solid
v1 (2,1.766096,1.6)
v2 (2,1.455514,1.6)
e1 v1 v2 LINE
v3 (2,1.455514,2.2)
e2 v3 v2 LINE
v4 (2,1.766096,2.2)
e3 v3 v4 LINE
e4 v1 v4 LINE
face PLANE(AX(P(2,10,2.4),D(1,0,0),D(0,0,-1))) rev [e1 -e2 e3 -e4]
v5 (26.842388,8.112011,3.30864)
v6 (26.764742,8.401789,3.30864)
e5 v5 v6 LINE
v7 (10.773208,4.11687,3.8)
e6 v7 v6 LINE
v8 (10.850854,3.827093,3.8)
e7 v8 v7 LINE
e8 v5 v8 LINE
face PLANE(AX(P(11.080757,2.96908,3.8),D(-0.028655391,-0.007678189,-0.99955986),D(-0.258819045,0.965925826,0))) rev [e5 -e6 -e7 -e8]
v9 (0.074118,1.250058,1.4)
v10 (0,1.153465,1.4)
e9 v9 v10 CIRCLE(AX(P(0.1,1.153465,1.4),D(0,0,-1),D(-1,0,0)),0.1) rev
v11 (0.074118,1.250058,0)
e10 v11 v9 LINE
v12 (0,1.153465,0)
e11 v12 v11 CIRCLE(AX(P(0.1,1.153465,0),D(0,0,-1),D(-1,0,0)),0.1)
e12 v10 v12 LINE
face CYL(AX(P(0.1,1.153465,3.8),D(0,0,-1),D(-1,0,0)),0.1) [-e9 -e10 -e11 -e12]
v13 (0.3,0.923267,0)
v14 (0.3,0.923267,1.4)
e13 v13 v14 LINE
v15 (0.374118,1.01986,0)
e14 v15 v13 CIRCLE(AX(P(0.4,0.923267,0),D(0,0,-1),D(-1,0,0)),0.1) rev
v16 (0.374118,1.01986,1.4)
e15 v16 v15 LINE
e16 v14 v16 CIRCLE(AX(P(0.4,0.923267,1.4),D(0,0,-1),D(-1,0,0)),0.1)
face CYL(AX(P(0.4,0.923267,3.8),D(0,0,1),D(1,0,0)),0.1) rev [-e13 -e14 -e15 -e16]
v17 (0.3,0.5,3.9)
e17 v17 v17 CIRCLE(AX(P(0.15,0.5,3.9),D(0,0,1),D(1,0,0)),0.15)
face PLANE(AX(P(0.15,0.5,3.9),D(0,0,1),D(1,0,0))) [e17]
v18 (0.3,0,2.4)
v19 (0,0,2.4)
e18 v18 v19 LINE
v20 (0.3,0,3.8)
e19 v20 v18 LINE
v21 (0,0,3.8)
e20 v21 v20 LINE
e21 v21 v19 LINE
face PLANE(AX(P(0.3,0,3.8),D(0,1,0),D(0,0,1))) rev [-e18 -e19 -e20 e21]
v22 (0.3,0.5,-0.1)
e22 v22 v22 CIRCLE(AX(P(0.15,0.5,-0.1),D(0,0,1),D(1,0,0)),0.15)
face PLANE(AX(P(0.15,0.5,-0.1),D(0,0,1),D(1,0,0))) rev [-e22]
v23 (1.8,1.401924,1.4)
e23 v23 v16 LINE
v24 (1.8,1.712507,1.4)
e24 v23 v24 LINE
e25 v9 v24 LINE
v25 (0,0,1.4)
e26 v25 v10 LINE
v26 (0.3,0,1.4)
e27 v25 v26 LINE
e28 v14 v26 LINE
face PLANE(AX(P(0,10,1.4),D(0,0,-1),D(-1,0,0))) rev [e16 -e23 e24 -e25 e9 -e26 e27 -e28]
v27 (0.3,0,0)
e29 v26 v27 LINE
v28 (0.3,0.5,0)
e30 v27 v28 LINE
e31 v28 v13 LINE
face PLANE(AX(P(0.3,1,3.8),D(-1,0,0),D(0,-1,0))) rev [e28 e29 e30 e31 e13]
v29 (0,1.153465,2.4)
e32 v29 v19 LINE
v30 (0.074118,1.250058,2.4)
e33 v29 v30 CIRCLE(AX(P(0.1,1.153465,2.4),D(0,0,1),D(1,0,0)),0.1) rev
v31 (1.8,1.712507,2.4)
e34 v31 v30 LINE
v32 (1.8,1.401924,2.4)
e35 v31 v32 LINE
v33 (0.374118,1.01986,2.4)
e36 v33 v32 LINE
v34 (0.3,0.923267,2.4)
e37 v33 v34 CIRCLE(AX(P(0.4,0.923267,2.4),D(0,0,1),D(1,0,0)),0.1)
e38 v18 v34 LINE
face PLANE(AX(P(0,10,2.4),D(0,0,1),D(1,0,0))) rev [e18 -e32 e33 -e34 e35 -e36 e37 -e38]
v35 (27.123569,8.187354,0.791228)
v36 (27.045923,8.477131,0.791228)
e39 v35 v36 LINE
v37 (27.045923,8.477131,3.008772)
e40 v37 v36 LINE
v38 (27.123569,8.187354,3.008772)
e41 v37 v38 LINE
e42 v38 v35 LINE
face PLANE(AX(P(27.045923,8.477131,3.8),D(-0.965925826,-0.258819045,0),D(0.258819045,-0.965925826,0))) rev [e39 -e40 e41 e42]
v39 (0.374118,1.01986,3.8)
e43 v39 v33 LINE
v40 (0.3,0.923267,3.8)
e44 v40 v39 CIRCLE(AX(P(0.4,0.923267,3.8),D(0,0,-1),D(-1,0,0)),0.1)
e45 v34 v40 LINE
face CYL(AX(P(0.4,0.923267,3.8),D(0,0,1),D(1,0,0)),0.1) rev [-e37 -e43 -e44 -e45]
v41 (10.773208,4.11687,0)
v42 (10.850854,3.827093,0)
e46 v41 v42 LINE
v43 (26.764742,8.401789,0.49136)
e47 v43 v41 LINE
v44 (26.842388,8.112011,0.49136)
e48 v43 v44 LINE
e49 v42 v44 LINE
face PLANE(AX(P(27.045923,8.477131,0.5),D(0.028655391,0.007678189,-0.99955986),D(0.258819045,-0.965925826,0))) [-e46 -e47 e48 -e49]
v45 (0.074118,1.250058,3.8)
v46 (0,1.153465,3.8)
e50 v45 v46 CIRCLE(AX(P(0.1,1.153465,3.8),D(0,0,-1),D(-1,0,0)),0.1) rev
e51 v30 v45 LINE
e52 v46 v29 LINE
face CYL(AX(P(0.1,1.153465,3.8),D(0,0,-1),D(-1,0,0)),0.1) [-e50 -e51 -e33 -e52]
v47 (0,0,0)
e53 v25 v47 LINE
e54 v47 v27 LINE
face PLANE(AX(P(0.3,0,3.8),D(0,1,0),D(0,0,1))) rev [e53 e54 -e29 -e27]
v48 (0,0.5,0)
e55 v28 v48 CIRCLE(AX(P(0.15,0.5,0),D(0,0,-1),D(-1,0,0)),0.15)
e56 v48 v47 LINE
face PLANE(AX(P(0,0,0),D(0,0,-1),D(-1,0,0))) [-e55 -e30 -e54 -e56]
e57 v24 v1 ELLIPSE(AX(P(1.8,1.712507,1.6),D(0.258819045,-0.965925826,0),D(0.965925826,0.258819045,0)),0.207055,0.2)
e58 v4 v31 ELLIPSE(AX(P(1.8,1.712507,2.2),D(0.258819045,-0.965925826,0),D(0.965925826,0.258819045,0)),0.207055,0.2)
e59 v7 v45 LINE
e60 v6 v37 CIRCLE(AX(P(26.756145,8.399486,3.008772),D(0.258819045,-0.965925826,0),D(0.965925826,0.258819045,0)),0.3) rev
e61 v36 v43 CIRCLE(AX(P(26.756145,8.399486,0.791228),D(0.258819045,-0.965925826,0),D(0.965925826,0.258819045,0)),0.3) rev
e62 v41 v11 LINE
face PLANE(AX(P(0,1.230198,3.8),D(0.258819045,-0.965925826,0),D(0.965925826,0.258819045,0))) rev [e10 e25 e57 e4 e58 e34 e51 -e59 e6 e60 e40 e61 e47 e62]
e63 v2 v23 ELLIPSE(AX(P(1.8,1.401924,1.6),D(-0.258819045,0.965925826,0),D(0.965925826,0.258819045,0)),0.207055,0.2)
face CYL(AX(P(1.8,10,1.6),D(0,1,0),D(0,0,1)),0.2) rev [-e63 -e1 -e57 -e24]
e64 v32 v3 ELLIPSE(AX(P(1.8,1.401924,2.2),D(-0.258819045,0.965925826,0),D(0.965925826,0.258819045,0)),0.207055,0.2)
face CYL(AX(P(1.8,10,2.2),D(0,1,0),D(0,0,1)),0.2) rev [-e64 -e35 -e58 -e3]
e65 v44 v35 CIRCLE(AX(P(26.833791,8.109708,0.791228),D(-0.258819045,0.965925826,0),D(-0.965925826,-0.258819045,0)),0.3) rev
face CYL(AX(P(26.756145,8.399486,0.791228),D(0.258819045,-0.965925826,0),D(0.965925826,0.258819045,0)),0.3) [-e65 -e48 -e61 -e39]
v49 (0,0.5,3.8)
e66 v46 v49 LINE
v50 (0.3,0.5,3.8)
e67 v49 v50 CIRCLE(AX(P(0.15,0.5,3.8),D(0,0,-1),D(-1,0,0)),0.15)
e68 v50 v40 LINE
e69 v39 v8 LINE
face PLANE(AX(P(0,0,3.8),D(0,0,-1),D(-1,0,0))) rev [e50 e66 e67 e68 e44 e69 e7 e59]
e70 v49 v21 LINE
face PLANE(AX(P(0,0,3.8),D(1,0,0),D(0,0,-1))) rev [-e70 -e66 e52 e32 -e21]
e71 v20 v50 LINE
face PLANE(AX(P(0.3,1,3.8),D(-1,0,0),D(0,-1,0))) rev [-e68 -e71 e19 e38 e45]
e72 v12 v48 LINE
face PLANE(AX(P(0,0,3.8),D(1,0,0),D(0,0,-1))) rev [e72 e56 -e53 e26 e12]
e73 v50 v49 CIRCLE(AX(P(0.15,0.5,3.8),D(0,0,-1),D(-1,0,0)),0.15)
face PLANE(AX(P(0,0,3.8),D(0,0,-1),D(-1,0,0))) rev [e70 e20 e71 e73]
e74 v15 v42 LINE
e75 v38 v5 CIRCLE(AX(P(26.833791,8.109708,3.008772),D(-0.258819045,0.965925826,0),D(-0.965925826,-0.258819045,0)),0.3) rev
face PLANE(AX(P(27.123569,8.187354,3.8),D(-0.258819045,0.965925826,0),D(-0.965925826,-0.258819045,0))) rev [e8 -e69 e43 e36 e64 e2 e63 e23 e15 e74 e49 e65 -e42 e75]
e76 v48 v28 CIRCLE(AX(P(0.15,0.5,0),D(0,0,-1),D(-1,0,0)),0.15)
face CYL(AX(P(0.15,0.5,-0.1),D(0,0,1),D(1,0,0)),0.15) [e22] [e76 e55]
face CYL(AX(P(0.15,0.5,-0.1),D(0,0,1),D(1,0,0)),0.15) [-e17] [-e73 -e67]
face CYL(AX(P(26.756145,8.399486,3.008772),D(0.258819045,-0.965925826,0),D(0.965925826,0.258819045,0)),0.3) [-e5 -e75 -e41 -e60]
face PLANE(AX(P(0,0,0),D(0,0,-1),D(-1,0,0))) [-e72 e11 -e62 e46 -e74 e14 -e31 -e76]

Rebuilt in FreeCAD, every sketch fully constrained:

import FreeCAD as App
import Part
import Sketcher
Q = App.Units.Quantity


def edges_at(feature, points):
    """Names of the edges that pass closest to the given points."""
    edges = feature.Shape.Edges
    near = lambda p: min(range(len(edges)), key=lambda i: edges[i].distToShape(Part.Vertex(*p))[0])
    return sorted({f"Edge{near(p) + 1}" for p in points})

doc = App.newDocument("Part")
params = doc.addObject("Spreadsheet::Sheet", "Params")
for row, (alias, value) in enumerate([
    ("sketch1_height", "1 mm"),
    ("sketch1_length", "28 mm"),
    ("sketch1_width", "0.3 mm"),
    ("sketch1_length2", "0.3 mm"),
    ("pad1_length", "3.8 mm"),
    ("chamfer_size", "0.5 mm"),
    ("chamfer_size2", "16.846754 mm"),
    ("sketch2_diameter", "0.3 mm"),
    ("pad2_length", "0.1 mm"),
    ("pad2_length2", "3.9 mm"),
    ("sketch3_width", "2 mm"),
    ("sketch3_height", "1 mm"),
    ("pocket1_length", "10 mm"),
    ("fillet_radius", "0.1 mm"),
    ("fillet2_radius", "0.3 mm"),
    ("fillet3_radius", "0.2 mm"),
], start=1):
    params.set(f"A{row}", alias)
    params.set(f"B{row}", "=" + value)
    params.setAlias(f"B{row}", alias)

body = doc.addObject("PartDesign::Body", "Body")

# Sketch on XY plane
sketch1 = body.newObject("Sketcher::SketchObject", "Sketch")
sketch1.AttachmentSupport = (doc.getObject("XY_Plane"), [""])
sketch1.MapMode = "FlatFace"
sketch1.addGeometry([
    Part.LineSegment(App.Vector(0, 1.230198, 0), App.Vector(0, 0, 0)),  # 0
    Part.LineSegment(App.Vector(0, 0, 0), App.Vector(0.3, 0, 0)),  # 1
    Part.LineSegment(App.Vector(0.3, 0, 0), App.Vector(0.3, 1, 0)),  # 2
    Part.LineSegment(App.Vector(0.3, 1, 0), App.Vector(27.123569, 8.187354, 0)),  # 3
    Part.LineSegment(App.Vector(27.123569, 8.187354, 0), App.Vector(27.045923, 8.477131, 0)),  # 4
    Part.LineSegment(App.Vector(27.045923, 8.477131, 0), App.Vector(0, 1.230198, 0)),  # 5
], False)
sketch1.addConstraint([
    Sketcher.Constraint("Coincident", 0, 2, 1, 1),
    Sketcher.Constraint("Coincident", 1, 2, 2, 1),
    Sketcher.Constraint("Coincident", 2, 2, 3, 1),
    Sketcher.Constraint("Coincident", 3, 2, 4, 1),
    Sketcher.Constraint("Coincident", 4, 2, 5, 1),
    Sketcher.Constraint("Coincident", 5, 2, 0, 1),
    Sketcher.Constraint("Vertical", 0),
    Sketcher.Constraint("Horizontal", 1),
    Sketcher.Constraint("Vertical", 2),
    Sketcher.Constraint("Coincident", 0, 2, -1, 1),
    Sketcher.Constraint("Perpendicular", 3, 4),
    Sketcher.Constraint("Perpendicular", 4, 5),
    Sketcher.Constraint("DistanceY", 2, 1, 2, 2, Q("1 mm")),
    Sketcher.Constraint("Angle", 3, Q("15 deg")),
    Sketcher.Constraint("Distance", 5, Q("28 mm")),
    Sketcher.Constraint("DistanceX", 1, 1, 1, 2, Q("0.3 mm")),
    Sketcher.Constraint("Distance", 4, Q("0.3 mm")),
])
sketch1.setExpression("Constraints[12]", "Params.sketch1_height")
sketch1.setExpression("Constraints[14]", "Params.sketch1_length")
sketch1.setExpression("Constraints[15]", "Params.sketch1_width")
sketch1.setExpression("Constraints[16]", "Params.sketch1_length2")
pad1 = body.newObject("PartDesign::Pad", "Pad")
pad1.Profile = sketch1
pad1.setExpression("Length", "Params.pad1_length")
doc.recompute()

chamfer = body.newObject("PartDesign::Chamfer", "Chamfer")
chamfer.Base = (pad1, edges_at(pad1, [(27.085, 8.332, 3.8), (27.085, 8.332, 0)]))
chamfer.ChamferType = "Two distances"
chamfer.setExpression("Size", "Params.chamfer_size")
chamfer.setExpression("Size2", "Params.chamfer_size2")

# Sketch on XY plane
sketch2 = body.newObject("Sketcher::SketchObject", "Sketch001")
sketch2.AttachmentSupport = (doc.getObject("XY_Plane"), [""])
sketch2.MapMode = "FlatFace"
sketch2.AttachmentOffset = App.Placement(App.Vector(0, 0, 3.8), App.Rotation())
sketch2.addGeometry(Part.Circle(App.Vector(0.15, 0.5, 0), App.Vector(0, 0, 1), 0.15), False)
sketch2.addConstraint([
    Sketcher.Constraint("Diameter", 0, Q("0.3 mm")),
    Sketcher.Constraint("DistanceY", -1, 1, 0, 3, Q("0.5 mm")),
    Sketcher.Constraint("DistanceX", -1, 1, 0, 3, Q("0.15 mm")),
])
sketch2.setExpression("Constraints[0]", "Params.sketch2_diameter")
pad2 = body.newObject("PartDesign::Pad", "Pad001")
pad2.Profile = sketch2
pad2.Type = "TwoLengths"
pad2.setExpression("Length", "Params.pad2_length")
pad2.setExpression("Length2", "Params.pad2_length2")

# Sketch on XZ plane
sketch3 = body.newObject("Sketcher::SketchObject", "Sketch002")
sketch3.AttachmentSupport = (doc.getObject("XZ_Plane"), [""])
sketch3.MapMode = "FlatFace"
sketch3.addGeometry([
    Part.LineSegment(App.Vector(0, 2.4, 0), App.Vector(0, 1.4, 0)),
    Part.LineSegment(App.Vector(0, 1.4, 0), App.Vector(2, 1.4, 0)),
    Part.LineSegment(App.Vector(2, 1.4, 0), App.Vector(2, 2.4, 0)),
    Part.LineSegment(App.Vector(2, 2.4, 0), App.Vector(0, 2.4, 0)),
], False)
sketch3.addConstraint([
    Sketcher.Constraint("Coincident", 0, 2, 1, 1),
    Sketcher.Constraint("Coincident", 1, 2, 2, 1),
    Sketcher.Constraint("Coincident", 2, 2, 3, 1),
    Sketcher.Constraint("Coincident", 3, 2, 0, 1),
    Sketcher.Constraint("Vertical", 0),
    Sketcher.Constraint("Horizontal", 1),
    Sketcher.Constraint("Vertical", 2),
    Sketcher.Constraint("Horizontal", 3),
    Sketcher.Constraint("PointOnObject", 0, 2, -2),
    Sketcher.Constraint("DistanceX", 1, 1, 1, 2, Q("2 mm")),
    Sketcher.Constraint("DistanceY", 0, 2, 0, 1, Q("1 mm")),
    Sketcher.Constraint("DistanceY", -1, 1, 0, 2, Q("1.4 mm")),
])
sketch3.setExpression("Constraints[9]", "Params.sketch3_width")
sketch3.setExpression("Constraints[10]", "Params.sketch3_height")
pocket1 = body.newObject("PartDesign::Pocket", "Pocket")
pocket1.Profile = sketch3
pocket1.setExpression("Length", "Params.pocket1_length")
doc.recompute()

fillet = body.newObject("PartDesign::Fillet", "Fillet")
fillet.Base = (pocket1, edges_at(pocket1, [
    (0, 1.23, 3.1),
    (0.3, 1, 3.1),
    (0, 1.23, 0.7),
    (0.3, 1, 0.7),
]))
fillet.setExpression("Radius", "Params.fillet_radius")
doc.recompute()

fillet2 = body.newObject("PartDesign::Fillet", "Fillet001")
fillet2.Base = (fillet, edges_at(fillet, [(27.085, 8.332, 0.5), (27.085, 8.332, 3.3)]))
fillet2.setExpression("Radius", "Params.fillet2_radius")
doc.recompute()

fillet3 = body.newObject("PartDesign::Fillet", "Fillet002")
fillet3.Base = (fillet2, edges_at(fillet2, [(2, 1.611, 2.4), (2, 1.611, 1.4)]))
fillet3.setExpression("Radius", "Params.fillet3_radius")

doc.recompute()
